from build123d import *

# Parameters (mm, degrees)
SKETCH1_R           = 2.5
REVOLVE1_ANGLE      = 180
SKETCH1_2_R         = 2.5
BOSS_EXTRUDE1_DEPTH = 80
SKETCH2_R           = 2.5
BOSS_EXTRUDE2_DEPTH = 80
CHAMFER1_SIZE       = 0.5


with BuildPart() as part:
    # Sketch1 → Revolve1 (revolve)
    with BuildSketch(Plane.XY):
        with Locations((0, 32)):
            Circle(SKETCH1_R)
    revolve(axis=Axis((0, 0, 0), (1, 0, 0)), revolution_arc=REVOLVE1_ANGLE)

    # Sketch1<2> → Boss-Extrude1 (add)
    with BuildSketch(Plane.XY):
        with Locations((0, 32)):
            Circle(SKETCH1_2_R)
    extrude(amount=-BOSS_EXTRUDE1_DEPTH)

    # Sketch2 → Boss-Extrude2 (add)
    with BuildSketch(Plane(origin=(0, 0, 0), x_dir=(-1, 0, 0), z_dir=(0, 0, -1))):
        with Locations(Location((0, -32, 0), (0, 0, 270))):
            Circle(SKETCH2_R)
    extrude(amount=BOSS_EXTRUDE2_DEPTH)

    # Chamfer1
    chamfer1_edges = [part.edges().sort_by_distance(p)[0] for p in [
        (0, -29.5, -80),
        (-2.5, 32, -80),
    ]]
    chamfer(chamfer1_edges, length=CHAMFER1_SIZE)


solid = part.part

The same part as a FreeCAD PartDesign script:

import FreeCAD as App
import Part
import Sketcher

V = App.Vector
Q = App.Units.Quantity


def edges_at(feature, points):
    """Names of the edges that pass closest to the given points."""
    edges = feature.Shape.Edges
    near = lambda p: min(range(len(edges)), key=lambda i: edges[i].distToShape(Part.Vertex(*p))[0])
    return sorted({f"Edge{near(p) + 1}" for p in points})

doc = App.newDocument("Part")
body = doc.addObject("PartDesign::Body", "Body")

# Sketch on XY plane
sketch1 = body.newObject("Sketcher::SketchObject", "Sketch")
sketch1.AttachmentSupport = (doc.getObject("XY_Plane"), [""])
sketch1.MapMode = "FlatFace"
sketch1.addGeometry(Part.Circle(V(0, 32, 0), V(0, 0, 1), 2.5), False)
sketch1.addConstraint([
    Sketcher.Constraint("PointOnObject", 0, 3, -2),
    Sketcher.Constraint("Diameter", 0, Q("5 mm")),
    Sketcher.Constraint("DistanceY", -1, 1, 0, 3, Q("32 mm")),
])
revolution = body.newObject("PartDesign::Revolution", "Revolution")
revolution.Profile = sketch1
revolution.ReferenceAxis = (sketch1, ["H_Axis"])
revolution.Angle = 180

# Sketch on XY plane
sketch2 = body.newObject("Sketcher::SketchObject", "Sketch001")
sketch2.AttachmentSupport = (doc.getObject("XY_Plane"), [""])
sketch2.MapMode = "FlatFace"
sketch2.addGeometry(Part.Circle(V(0, 32, 0), V(0, 0, 1), 2.5), False)
sketch2.addConstraint([
    Sketcher.Constraint("PointOnObject", 0, 3, -2),
    Sketcher.Constraint("Diameter", 0, Q("5 mm")),
    Sketcher.Constraint("DistanceY", -1, 1, 0, 3, Q("32 mm")),
])
pad1 = body.newObject("PartDesign::Pad", "Pad")
pad1.Profile = sketch2
pad1.Length = 80
pad1.Reversed = True

# Sketch on XY plane
sketch3 = body.newObject("Sketcher::SketchObject", "Sketch002")
sketch3.AttachmentSupport = (doc.getObject("XY_Plane"), [""])
sketch3.MapMode = "FlatFace"
sketch3.addGeometry(Part.Circle(V(0, -32, 0), V(0, 0, 1), 2.5), False)
sketch3.addConstraint([
    Sketcher.Constraint("PointOnObject", 0, 3, -2),
    Sketcher.Constraint("Diameter", 0, Q("5 mm")),
    Sketcher.Constraint("DistanceY", 0, 3, -1, 1, Q("32 mm")),
])
pad2 = body.newObject("PartDesign::Pad", "Pad001")
pad2.Profile = sketch3
pad2.Length = 80
pad2.Reversed = True
doc.recompute()

chamfer = body.newObject("PartDesign::Chamfer", "Chamfer")
chamfer.Base = (pad2, edges_at(pad2, [(0, -29.5, -80), (-2.5, 32, -80)]))
chamfer.Size = 0.5

doc.recompute()
